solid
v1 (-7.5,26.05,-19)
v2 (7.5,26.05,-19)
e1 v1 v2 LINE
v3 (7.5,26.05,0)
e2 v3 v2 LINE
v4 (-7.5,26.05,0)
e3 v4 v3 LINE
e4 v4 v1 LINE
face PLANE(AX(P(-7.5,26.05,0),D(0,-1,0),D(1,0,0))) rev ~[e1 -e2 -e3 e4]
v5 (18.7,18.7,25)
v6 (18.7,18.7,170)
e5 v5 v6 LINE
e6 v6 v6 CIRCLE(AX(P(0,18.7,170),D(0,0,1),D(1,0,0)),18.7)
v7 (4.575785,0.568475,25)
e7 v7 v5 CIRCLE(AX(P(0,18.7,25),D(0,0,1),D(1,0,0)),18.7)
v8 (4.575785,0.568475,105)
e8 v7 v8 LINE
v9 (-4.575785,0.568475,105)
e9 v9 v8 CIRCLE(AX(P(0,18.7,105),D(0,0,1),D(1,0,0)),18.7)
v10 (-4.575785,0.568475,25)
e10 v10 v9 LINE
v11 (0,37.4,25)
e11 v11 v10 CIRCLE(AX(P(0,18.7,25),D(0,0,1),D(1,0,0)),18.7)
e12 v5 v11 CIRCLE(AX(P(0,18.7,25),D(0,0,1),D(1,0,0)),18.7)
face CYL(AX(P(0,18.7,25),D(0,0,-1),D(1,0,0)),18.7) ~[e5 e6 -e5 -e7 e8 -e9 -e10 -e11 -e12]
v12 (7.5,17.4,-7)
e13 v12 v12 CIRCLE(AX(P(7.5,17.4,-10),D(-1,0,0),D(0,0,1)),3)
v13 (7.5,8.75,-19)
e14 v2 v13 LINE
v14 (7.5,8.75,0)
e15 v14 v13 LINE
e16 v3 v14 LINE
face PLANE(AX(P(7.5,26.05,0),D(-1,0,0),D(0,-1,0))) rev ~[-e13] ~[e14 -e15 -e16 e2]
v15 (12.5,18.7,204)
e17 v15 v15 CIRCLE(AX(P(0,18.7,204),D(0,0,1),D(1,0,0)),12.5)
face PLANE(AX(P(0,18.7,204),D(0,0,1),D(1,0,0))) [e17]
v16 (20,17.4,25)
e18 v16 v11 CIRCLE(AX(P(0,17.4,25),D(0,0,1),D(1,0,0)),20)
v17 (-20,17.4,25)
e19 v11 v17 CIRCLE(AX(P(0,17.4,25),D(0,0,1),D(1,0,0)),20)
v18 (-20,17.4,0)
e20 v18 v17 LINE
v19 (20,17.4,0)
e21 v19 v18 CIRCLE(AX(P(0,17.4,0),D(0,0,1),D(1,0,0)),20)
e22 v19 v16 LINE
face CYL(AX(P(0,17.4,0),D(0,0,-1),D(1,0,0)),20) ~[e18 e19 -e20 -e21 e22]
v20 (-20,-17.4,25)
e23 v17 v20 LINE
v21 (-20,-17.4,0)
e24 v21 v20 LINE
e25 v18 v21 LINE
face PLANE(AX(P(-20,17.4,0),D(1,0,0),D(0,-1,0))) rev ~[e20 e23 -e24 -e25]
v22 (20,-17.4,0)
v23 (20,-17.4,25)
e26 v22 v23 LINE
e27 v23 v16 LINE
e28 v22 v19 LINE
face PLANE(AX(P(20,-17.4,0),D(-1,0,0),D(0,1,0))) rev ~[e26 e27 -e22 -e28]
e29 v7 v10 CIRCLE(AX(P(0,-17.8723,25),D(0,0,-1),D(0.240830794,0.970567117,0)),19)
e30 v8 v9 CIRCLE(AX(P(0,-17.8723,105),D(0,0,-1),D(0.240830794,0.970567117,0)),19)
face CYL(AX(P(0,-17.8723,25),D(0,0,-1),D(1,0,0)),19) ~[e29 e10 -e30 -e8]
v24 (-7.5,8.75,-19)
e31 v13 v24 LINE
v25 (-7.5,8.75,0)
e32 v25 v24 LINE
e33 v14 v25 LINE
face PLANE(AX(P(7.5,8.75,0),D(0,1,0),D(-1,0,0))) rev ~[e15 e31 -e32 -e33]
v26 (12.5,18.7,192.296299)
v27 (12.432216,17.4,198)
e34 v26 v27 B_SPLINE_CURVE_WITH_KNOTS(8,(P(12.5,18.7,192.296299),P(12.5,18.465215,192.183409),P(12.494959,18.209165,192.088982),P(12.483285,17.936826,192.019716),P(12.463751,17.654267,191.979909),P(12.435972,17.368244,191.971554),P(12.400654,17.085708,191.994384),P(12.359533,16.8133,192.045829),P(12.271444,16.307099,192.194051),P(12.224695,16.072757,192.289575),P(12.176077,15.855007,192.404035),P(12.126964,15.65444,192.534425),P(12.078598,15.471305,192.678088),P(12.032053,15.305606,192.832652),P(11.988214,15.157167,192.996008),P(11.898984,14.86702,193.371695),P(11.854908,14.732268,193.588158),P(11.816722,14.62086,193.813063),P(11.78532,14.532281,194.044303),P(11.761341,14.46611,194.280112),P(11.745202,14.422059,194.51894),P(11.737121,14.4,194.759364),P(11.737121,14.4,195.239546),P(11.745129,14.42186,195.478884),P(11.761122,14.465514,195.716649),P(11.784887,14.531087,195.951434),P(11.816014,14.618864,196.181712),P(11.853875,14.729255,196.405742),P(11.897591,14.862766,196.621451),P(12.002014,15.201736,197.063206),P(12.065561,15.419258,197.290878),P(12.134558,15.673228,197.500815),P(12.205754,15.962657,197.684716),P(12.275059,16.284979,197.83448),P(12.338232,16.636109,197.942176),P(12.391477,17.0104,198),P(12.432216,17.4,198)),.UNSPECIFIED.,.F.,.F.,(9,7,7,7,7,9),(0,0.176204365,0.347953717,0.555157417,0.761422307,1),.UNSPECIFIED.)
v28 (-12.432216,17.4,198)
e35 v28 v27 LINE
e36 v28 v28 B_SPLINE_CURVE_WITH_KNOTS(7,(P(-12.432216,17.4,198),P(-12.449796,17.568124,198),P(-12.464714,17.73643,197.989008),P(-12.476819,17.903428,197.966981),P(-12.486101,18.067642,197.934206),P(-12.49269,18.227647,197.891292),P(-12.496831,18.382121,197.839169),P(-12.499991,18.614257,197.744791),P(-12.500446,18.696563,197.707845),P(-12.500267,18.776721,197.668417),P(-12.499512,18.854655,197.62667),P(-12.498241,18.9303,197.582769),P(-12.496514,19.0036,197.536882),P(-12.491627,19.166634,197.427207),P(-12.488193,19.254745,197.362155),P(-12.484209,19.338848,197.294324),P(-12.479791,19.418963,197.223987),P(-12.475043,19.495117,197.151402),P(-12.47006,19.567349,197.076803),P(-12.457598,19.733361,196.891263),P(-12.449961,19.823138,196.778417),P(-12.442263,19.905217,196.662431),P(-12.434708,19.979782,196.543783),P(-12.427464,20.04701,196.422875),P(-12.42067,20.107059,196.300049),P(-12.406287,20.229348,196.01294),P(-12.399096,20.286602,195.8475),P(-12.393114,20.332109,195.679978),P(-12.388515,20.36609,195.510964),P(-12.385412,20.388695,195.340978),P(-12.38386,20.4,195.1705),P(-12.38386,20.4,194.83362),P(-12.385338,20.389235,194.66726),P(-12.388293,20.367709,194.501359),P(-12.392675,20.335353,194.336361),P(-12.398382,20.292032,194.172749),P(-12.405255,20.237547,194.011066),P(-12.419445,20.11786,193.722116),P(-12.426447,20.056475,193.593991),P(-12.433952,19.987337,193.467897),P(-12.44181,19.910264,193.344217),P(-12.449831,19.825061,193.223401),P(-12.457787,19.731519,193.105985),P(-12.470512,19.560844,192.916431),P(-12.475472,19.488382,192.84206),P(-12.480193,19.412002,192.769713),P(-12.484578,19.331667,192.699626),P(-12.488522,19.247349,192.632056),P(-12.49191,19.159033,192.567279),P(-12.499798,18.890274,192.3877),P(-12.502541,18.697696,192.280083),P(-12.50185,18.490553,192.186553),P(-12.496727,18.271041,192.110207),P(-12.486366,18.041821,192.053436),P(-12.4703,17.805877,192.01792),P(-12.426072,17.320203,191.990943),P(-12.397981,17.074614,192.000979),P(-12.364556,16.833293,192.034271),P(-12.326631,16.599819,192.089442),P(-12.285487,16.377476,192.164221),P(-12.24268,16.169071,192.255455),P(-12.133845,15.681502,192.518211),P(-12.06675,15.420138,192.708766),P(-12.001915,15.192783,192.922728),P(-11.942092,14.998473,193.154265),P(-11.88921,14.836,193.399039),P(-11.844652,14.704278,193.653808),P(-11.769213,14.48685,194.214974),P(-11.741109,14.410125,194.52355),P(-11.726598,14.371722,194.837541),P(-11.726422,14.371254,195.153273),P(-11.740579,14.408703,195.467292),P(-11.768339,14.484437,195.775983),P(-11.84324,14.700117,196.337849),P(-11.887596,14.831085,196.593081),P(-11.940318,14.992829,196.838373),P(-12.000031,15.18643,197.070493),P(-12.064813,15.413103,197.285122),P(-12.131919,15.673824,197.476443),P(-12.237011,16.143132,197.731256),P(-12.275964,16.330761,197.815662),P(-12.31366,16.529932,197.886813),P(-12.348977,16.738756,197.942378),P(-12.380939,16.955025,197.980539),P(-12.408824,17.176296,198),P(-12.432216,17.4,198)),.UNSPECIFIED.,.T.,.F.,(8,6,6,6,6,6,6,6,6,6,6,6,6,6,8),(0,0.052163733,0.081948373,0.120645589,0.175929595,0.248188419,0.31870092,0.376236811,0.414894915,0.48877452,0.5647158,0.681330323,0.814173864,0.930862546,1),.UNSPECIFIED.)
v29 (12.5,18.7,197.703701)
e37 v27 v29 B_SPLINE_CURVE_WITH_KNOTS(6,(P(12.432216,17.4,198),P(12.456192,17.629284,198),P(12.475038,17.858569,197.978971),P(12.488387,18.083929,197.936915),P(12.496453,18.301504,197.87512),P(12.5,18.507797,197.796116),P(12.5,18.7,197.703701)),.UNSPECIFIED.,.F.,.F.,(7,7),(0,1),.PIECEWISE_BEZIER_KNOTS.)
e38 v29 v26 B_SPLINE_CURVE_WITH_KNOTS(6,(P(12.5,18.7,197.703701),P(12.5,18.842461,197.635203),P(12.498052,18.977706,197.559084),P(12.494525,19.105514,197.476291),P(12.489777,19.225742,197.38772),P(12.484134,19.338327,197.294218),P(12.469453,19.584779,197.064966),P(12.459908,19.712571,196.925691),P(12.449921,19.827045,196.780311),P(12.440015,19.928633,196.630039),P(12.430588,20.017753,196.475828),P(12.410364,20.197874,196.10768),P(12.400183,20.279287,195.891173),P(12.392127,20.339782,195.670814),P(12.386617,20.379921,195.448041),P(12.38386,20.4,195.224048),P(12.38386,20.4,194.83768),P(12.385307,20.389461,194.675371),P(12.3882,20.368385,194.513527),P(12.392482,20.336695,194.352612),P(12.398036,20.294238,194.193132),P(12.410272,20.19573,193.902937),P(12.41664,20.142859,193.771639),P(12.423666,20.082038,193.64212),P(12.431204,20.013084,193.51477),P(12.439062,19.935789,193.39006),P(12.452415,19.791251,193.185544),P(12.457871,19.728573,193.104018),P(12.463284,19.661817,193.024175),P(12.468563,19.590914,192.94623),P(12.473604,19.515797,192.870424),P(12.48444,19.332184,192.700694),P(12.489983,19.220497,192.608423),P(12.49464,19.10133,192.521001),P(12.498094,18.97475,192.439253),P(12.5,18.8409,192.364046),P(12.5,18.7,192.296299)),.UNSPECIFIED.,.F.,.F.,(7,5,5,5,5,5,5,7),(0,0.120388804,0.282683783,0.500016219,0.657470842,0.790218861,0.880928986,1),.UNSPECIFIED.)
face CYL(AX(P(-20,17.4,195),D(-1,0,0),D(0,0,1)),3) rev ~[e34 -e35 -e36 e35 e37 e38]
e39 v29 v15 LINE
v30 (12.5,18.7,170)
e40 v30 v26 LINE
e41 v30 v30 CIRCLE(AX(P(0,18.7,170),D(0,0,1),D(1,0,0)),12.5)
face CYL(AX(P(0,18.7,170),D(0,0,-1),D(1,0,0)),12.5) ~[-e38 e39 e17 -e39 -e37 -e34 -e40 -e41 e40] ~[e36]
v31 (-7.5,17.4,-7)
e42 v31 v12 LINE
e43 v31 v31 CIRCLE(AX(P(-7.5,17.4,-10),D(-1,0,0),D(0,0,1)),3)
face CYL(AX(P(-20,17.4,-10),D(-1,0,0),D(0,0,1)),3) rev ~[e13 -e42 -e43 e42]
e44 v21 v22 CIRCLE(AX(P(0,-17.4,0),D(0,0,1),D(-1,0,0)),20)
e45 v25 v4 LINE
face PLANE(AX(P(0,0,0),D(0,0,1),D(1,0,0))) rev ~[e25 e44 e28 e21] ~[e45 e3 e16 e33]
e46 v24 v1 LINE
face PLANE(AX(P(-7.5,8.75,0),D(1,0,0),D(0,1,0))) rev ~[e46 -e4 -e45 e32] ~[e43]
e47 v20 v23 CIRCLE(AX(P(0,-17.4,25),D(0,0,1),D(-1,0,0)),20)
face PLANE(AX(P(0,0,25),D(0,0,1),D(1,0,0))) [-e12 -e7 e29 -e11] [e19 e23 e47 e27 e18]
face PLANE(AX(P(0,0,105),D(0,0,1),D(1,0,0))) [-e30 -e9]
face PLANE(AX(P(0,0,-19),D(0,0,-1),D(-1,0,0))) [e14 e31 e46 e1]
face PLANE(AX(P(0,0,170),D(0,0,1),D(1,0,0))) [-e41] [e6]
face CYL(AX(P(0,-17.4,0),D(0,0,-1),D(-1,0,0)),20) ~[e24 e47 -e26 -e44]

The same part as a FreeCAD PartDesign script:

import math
import FreeCAD as App
import Part
import Sketcher

V = App.Vector
Q = App.Units.Quantity

doc = App.newDocument("Part")
body = doc.addObject("PartDesign::Body", "Body")

sketch1 = body.newObject("Sketcher::SketchObject", "Sketch")
sketch1.AttachmentSupport = (doc.getObject("XY_Plane"), [""])
sketch1.MapMode = "FlatFace"
sketch1.addGeometry(Part.ArcOfCircle(Part.Circle(V(0, 17, 0), V(0, 0, 1), 20), math.radians(0), math.radians(180)), False)
sketch1.addGeometry(Part.LineSegment(V(-20, 17, 0), V(-20, -17, 0)), False)
sketch1.addGeometry(Part.ArcOfCircle(Part.Circle(V(0, -17, 0), V(0, 0, 1), 20), math.radians(180), math.radians(360)), False)
sketch1.addGeometry(Part.LineSegment(V(20, -17, 0), V(20, 17, 0)), False)
sketch1.addConstraint(Sketcher.Constraint("Tangent", 0, 2, 1, 1))
sketch1.addConstraint(Sketcher.Constraint("Tangent", 1, 2, 2, 1))
sketch1.addConstraint(Sketcher.Constraint("Tangent", 2, 2, 3, 1))
sketch1.addConstraint(Sketcher.Constraint("Tangent", 3, 2, 0, 1))
sketch1.addConstraint(Sketcher.Constraint("Vertical", 1))
sketch1.addConstraint(Sketcher.Constraint("Vertical", 3))
sketch1.addConstraint(Sketcher.Constraint("Symmetric", 0, 3, 2, 3, -1, 1))
sketch1.addConstraint(Sketcher.Constraint("Radius", 0, Q("20 mm")))
sketch1.addConstraint(Sketcher.Constraint("DistanceY", 1, 2, 1, 1, Q("34.8 mm")))
pad1 = body.newObject("PartDesign::Pad", "Pad")
pad1.Profile = sketch1
pad1.Length = 25

sketch2 = body.newObject("Sketcher::SketchObject", "Sketch001")
sketch2.AttachmentSupport = (doc.getObject("XY_Plane"), [""])
sketch2.MapMode = "FlatFace"
sketch2.AttachmentOffset = App.Placement(V(0, 0, 25), App.Rotation())
sketch2.addGeometry(Part.Circle(V(0, 19, 0), V(0, 0, 1), 19), False)
sketch2.addConstraint(Sketcher.Constraint("PointOnObject", 0, 3, -2))
sketch2.addConstraint(Sketcher.Constraint("Diameter", 0, Q("37.4 mm")))
sketch2.addConstraint(Sketcher.Constraint("DistanceY", -1, 1, 0, 3, Q("18.7 mm")))
pad2 = body.newObject("PartDesign::Pad", "Pad001")
pad2.Profile = sketch2
pad2.Length = 145

sketch3 = body.newObject("Sketcher::SketchObject", "Sketch002")
sketch3.AttachmentSupport = (doc.getObject("XY_Plane"), [""])
sketch3.MapMode = "FlatFace"
sketch3.AttachmentOffset = App.Placement(V(0, 0, 170), App.Rotation())
sketch3.addGeometry(Part.Circle(V(0, 19, 0), V(0, 0, 1), 12), False)
sketch3.addConstraint(Sketcher.Constraint("PointOnObject", 0, 3, -2))
sketch3.addConstraint(Sketcher.Constraint("Diameter", 0, Q("25 mm")))
sketch3.addConstraint(Sketcher.Constraint("DistanceY", -1, 1, 0, 3, Q("18.7 mm")))
pad3 = body.newObject("PartDesign::Pad", "Pad002")
pad3.Profile = sketch3
pad3.Length = 34

sketch4 = body.newObject("Sketcher::SketchObject", "Sketch003")
sketch4.AttachmentSupport = (doc.getObject("XY_Plane"), [""])
sketch4.MapMode = "FlatFace"
sketch4.addGeometry(Part.LineSegment(V(8, 26, 0), V(8, 9, 0)), False)
sketch4.addGeometry(Part.LineSegment(V(8, 9, 0), V(-8, 9, 0)), False)
sketch4.addGeometry(Part.LineSegment(V(-8, 9, 0), V(-8, 26, 0)), False)
sketch4.addGeometry(Part.LineSegment(V(-8, 26, 0), V(8, 26, 0)), False)
sketch4.addConstraint(Sketcher.Constraint("Coincident", 0, 2, 1, 1))
sketch4.addConstraint(Sketcher.Constraint("Coincident", 1, 2, 2, 1))
sketch4.addConstraint(Sketcher.Constraint("Coincident", 2, 2, 3, 1))
sketch4.addConstraint(Sketcher.Constraint("Coincident", 3, 2, 0, 1))
sketch4.addConstraint(Sketcher.Constraint("Vertical", 0))
sketch4.addConstraint(Sketcher.Constraint("Horizontal", 1))
sketch4.addConstraint(Sketcher.Constraint("Vertical", 2))
sketch4.addConstraint(Sketcher.Constraint("Horizontal", 3))
sketch4.addConstraint(Sketcher.Constraint("DistanceX", 1, 2, 1, 1, Q("15 mm")))
sketch4.addConstraint(Sketcher.Constraint("DistanceY", 0, 2, 0, 1, Q("17.3 mm")))
sketch4.addConstraint(Sketcher.Constraint("DistanceX", -1, 1, 0, 2, Q("7.5 mm")))
sketch4.addConstraint(Sketcher.Constraint("DistanceY", -1, 1, 0, 2, Q("8.75 mm")))
pad4 = body.newObject("PartDesign::Pad", "Pad003")
pad4.Profile = sketch4
pad4.Length = 19
pad4.Reversed = True

sketch5 = body.newObject("Sketcher::SketchObject", "Sketch004")
sketch5.AttachmentSupport = (doc.getObject("YZ_Plane"), [""])
sketch5.MapMode = "FlatFace"
sketch5.AttachmentOffset = App.Placement(V(0, 0, -20), App.Rotation())
sketch5.addGeometry(Part.Circle(V(17.4, -10, 0), V(0, 0, 1), 3), False)
sketch5.addGeometry(Part.Circle(V(17.4, 195, 0), V(0, 0, 1), 3), False)
sketch5.addConstraint(Sketcher.Constraint("Equal", 0, 1))
sketch5.addConstraint(Sketcher.Constraint("Vertical", 0, 3, 1, 3))
sketch5.addConstraint(Sketcher.Constraint("Diameter", 0, Q("6 mm")))
sketch5.addConstraint(Sketcher.Constraint("DistanceY", 0, 3, 1, 3, Q("205 mm")))
sketch5.addConstraint(Sketcher.Constraint("DistanceY", 0, 3, -1, 1, Q("10 mm")))
sketch5.addConstraint(Sketcher.Constraint("DistanceX", -1, 1, 0, 3, Q("17.4 mm")))
pocket1 = body.newObject("PartDesign::Pocket", "Pocket")
pocket1.Profile = sketch5
pocket1.Type = "ThroughAll"
pocket1.Reversed = True

sketch6 = body.newObject("Sketcher::SketchObject", "Sketch005")
sketch6.AttachmentSupport = (doc.getObject("XY_Plane"), [""])
sketch6.MapMode = "FlatFace"
sketch6.AttachmentOffset = App.Placement(V(0, 0, 25), App.Rotation())
sketch6.addGeometry(Part.ArcOfCircle(Part.Circle(V(0, -18, 0), V(0, 0, 1), 19), math.radians(104), math.radians(436)), False)
sketch6.addGeometry(Part.ArcOfCircle(Part.Circle(V(0, 19, 0), V(0, 0, 1), 19), math.radians(-104), math.radians(-76)), False)
sketch6.addConstraint(Sketcher.Constraint("Coincident", 0, 1, 1, 1))
sketch6.addConstraint(Sketcher.Constraint("Coincident", 1, 2, 0, 2))
sketch6.addConstraint(Sketcher.Constraint("Symmetric", 0, 1, 1, 2, -2))
sketch6.addConstraint(Sketcher.Constraint("Radius", 0, Q("19 mm")))
sketch6.addConstraint(Sketcher.Constraint("Radius", 1, Q("18.7 mm")))
sketch6.addConstraint(Sketcher.Constraint("DistanceY", -1, 1, 1, 3, Q("18.7 mm")))
sketch6.addConstraint(Sketcher.Constraint("DistanceY", 0, 3, -1, 1, Q("17.8723 mm")))
pad5 = body.newObject("PartDesign::Pad", "Pad004")
pad5.Profile = sketch6
pad5.Length = 80

doc.recompute()
